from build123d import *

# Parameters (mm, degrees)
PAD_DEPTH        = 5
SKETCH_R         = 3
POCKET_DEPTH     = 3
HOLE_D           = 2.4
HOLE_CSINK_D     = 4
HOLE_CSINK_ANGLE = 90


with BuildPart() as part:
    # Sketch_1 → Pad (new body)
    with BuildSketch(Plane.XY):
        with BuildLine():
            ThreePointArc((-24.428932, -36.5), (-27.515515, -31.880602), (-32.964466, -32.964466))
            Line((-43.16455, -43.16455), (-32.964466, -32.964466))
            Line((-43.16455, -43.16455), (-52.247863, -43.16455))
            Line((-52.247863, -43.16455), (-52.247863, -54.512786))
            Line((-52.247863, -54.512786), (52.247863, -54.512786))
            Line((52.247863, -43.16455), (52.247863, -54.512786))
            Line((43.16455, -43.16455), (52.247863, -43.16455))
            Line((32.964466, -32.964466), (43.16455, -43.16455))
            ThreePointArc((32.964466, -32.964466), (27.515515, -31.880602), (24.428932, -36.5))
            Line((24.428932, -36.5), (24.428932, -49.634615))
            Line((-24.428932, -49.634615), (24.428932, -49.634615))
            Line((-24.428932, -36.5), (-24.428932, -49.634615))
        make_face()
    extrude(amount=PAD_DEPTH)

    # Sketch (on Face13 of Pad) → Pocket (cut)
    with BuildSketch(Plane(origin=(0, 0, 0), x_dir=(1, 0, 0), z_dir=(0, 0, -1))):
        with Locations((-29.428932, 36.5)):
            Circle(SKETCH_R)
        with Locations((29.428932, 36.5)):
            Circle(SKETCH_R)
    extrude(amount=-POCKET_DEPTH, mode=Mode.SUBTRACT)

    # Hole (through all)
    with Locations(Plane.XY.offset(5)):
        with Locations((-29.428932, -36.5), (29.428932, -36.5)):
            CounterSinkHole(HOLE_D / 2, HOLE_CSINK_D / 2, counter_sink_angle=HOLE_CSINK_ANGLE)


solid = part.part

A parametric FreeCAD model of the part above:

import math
import FreeCAD as App
import Part
import Sketcher

V = App.Vector

doc = App.newDocument("Part")
body = doc.addObject("PartDesign::Body", "Body")

# Sketch on XY plane
sketch1 = body.newObject("Sketcher::SketchObject", "Sketch")
sketch1.AttachmentSupport = (doc.getObject("XY_Plane"), [""])
sketch1.MapMode = "FlatFace"
sketch1.addGeometry([
    Part.ArcOfCircle(Part.Circle(V(-29.4, -36.5, 0), V(0, 0, 1), 5), math.radians(0), math.radians(135)),  # 0
    Part.LineSegment(V(-33, -33, 0), V(-43.2, -43.2, 0)),  # 1
    Part.LineSegment(V(-43.2, -43.2, 0), V(-52.2, -43.2, 0)),  # 2
    Part.LineSegment(V(-52.2, -43.2, 0), V(-52.2, -54.5, 0)),  # 3
    Part.LineSegment(V(-52.2, -54.5, 0), V(52.2, -54.5, 0)),  # 4
    Part.LineSegment(V(52.2, -54.5, 0), V(52.2, -43.2, 0)),  # 5
    Part.LineSegment(V(52.2, -43.2, 0), V(43.2, -43.2, 0)),  # 6
    Part.LineSegment(V(43.2, -43.2, 0), V(33, -33, 0)),  # 7
    Part.ArcOfCircle(Part.Circle(V(29.4, -36.5, 0), V(0, 0, 1), 5), math.radians(45), math.radians(180)),  # 8
    Part.LineSegment(V(24.4, -36.5, 0), V(24.4, -49.6, 0)),  # 9
    Part.LineSegment(V(24.4, -49.6, 0), V(-24.4, -49.6, 0)),  # 10
    Part.LineSegment(V(-24.4, -49.6, 0), V(-24.4, -36.5, 0)),  # 11
], False)
sketch1.addConstraint([
    Sketcher.Constraint("Tangent", 0, 2, 1, 1),
    Sketcher.Constraint("Coincident", 1, 2, 2, 1),
    Sketcher.Constraint("Coincident", 2, 2, 3, 1),
    Sketcher.Constraint("Coincident", 3, 2, 4, 1),
    Sketcher.Constraint("Coincident", 4, 2, 5, 1),
    Sketcher.Constraint("Coincident", 5, 2, 6, 1),
    Sketcher.Constraint("Coincident", 6, 2, 7, 1),
    Sketcher.Constraint("Tangent", 7, 2, 8, 1),
    Sketcher.Constraint("Tangent", 8, 2, 9, 1),
    Sketcher.Constraint("Coincident", 9, 2, 10, 1),
    Sketcher.Constraint("Coincident", 10, 2, 11, 1),
    Sketcher.Constraint("Tangent", 11, 2, 0, 1),
    Sketcher.Constraint("Horizontal", 2),
    Sketcher.Constraint("Vertical", 3),
    Sketcher.Constraint("Horizontal", 4),
    Sketcher.Constraint("Vertical", 5),
    Sketcher.Constraint("Horizontal", 6),
    Sketcher.Constraint("Vertical", 9),
    Sketcher.Constraint("Horizontal", 10),
    Sketcher.Constraint("Vertical", 11),
    Sketcher.Constraint("Equal", 0, 8),
    Sketcher.Constraint("Symmetric", 0, 3, 8, 3, -2),
    Sketcher.Constraint("Symmetric", 2, 2, 5, 2, -2),
    Sketcher.Constraint("Perpendicular", 1, 7),
    Sketcher.Constraint("Horizontal", 0, 2, 7, 2),
    Sketcher.Constraint("Radius", 0, 5.0),
    Sketcher.Constraint("DistanceY", 0, 3, -1, 1, 36.5),
    Sketcher.Constraint("DistanceX", 2, 2, 2, 1, 9.083313),
    Sketcher.Constraint("DistanceX", 4, 1, 4, 2, 104.495726),
    Sketcher.Constraint("DistanceX", 10, 2, 10, 1, 48.857864),
    Sketcher.Constraint("DistanceY", 3, 2, 3, 1, 11.348236),
    Sketcher.Constraint("DistanceY", 9, 2, 9, 1, 13.134615),
])
pad1 = body.newObject("PartDesign::Pad", "Pad")
pad1.Profile = sketch1
pad1.Length = 5

# Sketch on XY plane
sketch2 = body.newObject("Sketcher::SketchObject", "Sketch001")
sketch2.AttachmentSupport = (doc.getObject("XY_Plane"), [""])
sketch2.MapMode = "FlatFace"
sketch2.addGeometry([
    Part.Circle(V(-29.4, -36.5, 0), V(0, 0, 1), 3),
    Part.Circle(V(29.4, -36.5, 0), V(0, 0, 1), 3),
], False)
sketch2.addConstraint([
    Sketcher.Constraint("Equal", 0, 1),
    Sketcher.Constraint("Symmetric", 0, 3, 1, 3, -2),
    Sketcher.Constraint("Diameter", 0, 6.0),
    Sketcher.Constraint("DistanceY", 0, 3, -1, 1, 36.5),
    Sketcher.Constraint("DistanceX", 0, 3, -1, 1, 29.428932),
])
pocket1 = body.newObject("PartDesign::Pocket", "Pocket")
pocket1.Profile = sketch2
pocket1.Length = 3
pocket1.Reversed = True

# Sketch on XY plane
sketch3 = body.newObject("Sketcher::SketchObject", "Sketch002")
sketch3.AttachmentSupport = (doc.getObject("XY_Plane"), [""])
sketch3.MapMode = "FlatFace"
sketch3.AttachmentOffset = App.Placement(V(0, 0, 5), App.Rotation())
sketch3.addGeometry([
    Part.Circle(V(-29.4, -36.5, 0), V(0, 0, 1), 1.2),
    Part.Circle(V(29.4, -36.5, 0), V(0, 0, 1), 1.2),
], False)
sketch3.addConstraint([
    Sketcher.Constraint("Equal", 0, 1),
    Sketcher.Constraint("Symmetric", 0, 3, 1, 3, -2),
    Sketcher.Constraint("Diameter", 0, 2.4),
    Sketcher.Constraint("DistanceY", 0, 3, -1, 1, 36.5),
    Sketcher.Constraint("DistanceX", 0, 3, -1, 1, 29.428932),
])
doc.recompute()
hole = body.newObject("PartDesign::Hole", "Hole")
hole.Profile = sketch3
hole.ThreadType = "None"
hole.Diameter = 2.4
hole.DepthType = "ThroughAll"
hole.HoleCutType = "Countersink"
hole.HoleCutDiameter = 4
hole.HoleCutCountersinkAngle = 90

doc.recompute()
